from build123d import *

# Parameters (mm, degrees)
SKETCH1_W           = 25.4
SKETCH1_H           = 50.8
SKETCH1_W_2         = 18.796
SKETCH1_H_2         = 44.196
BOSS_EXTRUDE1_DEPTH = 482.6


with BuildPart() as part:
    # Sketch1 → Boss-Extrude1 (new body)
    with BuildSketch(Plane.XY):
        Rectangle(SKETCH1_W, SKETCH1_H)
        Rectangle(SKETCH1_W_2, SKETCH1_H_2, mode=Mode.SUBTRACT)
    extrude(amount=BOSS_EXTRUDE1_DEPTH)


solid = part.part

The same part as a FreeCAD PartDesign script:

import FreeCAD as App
import Part
import Sketcher
Q = App.Units.Quantity


def add_polygon(sketch, points):
    """Adds a closed chain of lines whose ends are joined by coincident constraints."""
    first, n = sketch.GeometryCount, len(points)
    for a, b in zip(points, points[1:] + points[:1]):
        sketch.addGeometry(Part.LineSegment(App.Vector(*a, 0), App.Vector(*b, 0)), False)
    for i in range(n):
        sketch.addConstraint(Sketcher.Constraint("Coincident", first + i, 2, first + (i + 1) % n, 1))

doc = App.newDocument("Part")
body = doc.addObject("PartDesign::Body", "Body")

# Sketch on XY plane
sketch1 = doc.addObject("Sketcher::SketchObject", "Sketch")
body.addObject(sketch1)
sketch1.AttachmentSupport = (doc.XY_Plane, [""])
sketch1.MapMode = "FlatFace"
add_polygon(sketch1, [(-13, 25), (-13, -25), (13, -25), (13, 25)])  # lines 0-3
add_polygon(sketch1, [(9, -22), (-9, -22), (-9, 22), (9, 22)])  # lines 4-7
sketch1.addConstraint([
    Sketcher.Constraint("Vertical", 0),
    Sketcher.Constraint("Horizontal", 1),
    Sketcher.Constraint("Vertical", 2),
    Sketcher.Constraint("Horizontal", 3),
    Sketcher.Constraint("Horizontal", 4),
    Sketcher.Constraint("Vertical", 5),
    Sketcher.Constraint("Horizontal", 6),
    Sketcher.Constraint("Vertical", 7),
    Sketcher.Constraint("Symmetric", 0, 2, 2, 2, -1, 1),
    Sketcher.Constraint("Symmetric", 4, 2, 6, 2, -1, 1),
    Sketcher.Constraint("DistanceX", 1, 1, 1, 2, Q("1 in")),
    Sketcher.Constraint("DistanceY", 0, 2, 0, 1, Q("2 in")),
    Sketcher.Constraint("DistanceX", 4, 2, 4, 1, Q("0.74 in")),
    Sketcher.Constraint("DistanceY", 5, 1, 5, 2, Q("1.74 in")),
])
pad1 = doc.addObject("PartDesign::Pad", "Pad")
body.addObject(pad1)
pad1.Profile = sketch1
pad1.Length = Q("19 in")

doc.recompute()
